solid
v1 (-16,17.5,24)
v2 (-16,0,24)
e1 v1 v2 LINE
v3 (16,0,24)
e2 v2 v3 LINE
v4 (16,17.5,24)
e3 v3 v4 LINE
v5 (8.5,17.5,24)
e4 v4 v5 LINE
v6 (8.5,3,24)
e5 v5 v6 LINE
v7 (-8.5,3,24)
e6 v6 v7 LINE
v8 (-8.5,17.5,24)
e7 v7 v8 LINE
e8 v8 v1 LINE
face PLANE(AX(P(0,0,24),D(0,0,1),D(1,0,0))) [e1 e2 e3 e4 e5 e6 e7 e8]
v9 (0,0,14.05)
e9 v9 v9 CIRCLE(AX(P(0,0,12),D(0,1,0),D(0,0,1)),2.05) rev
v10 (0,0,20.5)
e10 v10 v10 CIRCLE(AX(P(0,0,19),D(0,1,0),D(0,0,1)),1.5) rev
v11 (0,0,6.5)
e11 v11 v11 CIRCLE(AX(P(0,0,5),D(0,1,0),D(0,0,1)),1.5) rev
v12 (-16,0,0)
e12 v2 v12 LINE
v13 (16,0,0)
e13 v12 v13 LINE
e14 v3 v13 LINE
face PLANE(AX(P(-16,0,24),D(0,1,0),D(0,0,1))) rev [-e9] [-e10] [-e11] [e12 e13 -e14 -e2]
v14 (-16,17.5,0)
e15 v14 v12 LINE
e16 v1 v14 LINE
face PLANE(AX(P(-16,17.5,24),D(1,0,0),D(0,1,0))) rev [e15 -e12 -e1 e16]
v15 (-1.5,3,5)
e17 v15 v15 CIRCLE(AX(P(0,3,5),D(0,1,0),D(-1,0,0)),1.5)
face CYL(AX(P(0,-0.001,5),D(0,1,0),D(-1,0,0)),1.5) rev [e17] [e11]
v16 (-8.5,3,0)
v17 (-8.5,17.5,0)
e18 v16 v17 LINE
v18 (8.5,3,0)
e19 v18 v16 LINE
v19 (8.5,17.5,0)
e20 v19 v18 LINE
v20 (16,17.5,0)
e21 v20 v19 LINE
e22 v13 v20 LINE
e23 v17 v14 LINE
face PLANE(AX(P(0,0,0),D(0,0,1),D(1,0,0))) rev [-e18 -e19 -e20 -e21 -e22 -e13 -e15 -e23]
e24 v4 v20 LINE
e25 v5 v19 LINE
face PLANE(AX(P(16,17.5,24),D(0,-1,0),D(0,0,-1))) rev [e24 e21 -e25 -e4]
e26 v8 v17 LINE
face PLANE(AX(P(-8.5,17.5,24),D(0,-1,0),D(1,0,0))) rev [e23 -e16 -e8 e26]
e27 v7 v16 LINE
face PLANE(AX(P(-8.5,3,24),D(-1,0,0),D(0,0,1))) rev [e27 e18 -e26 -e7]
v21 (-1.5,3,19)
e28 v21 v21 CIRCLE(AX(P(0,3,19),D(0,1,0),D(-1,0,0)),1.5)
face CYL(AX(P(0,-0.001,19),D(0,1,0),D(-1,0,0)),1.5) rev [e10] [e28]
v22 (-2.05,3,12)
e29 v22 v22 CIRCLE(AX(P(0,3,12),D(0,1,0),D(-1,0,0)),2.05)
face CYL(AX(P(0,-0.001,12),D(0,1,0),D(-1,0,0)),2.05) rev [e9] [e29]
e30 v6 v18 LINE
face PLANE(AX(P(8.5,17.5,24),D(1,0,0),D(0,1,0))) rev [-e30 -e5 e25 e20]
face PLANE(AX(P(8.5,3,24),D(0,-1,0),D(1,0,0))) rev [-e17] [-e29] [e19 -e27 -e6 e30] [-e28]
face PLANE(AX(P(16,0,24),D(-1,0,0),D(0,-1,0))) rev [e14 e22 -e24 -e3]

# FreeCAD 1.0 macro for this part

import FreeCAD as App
import Part
import Sketcher
Q = App.Units.Quantity


def add_polygon(sketch, points):
    """Adds a closed chain of lines whose ends are joined by coincident constraints."""
    first, n = sketch.GeometryCount, len(points)
    for a, b in zip(points, points[1:] + points[:1]):
        sketch.addGeometry(Part.LineSegment(App.Vector(*a, 0), App.Vector(*b, 0)), False)
    for i in range(n):
        sketch.addConstraint(Sketcher.Constraint("Coincident", first + i, 2, first + (i + 1) % n, 1))

doc = App.newDocument("Part")
body = doc.addObject("PartDesign::Body", "Body")

sketch1 = body.newObject("Sketcher::SketchObject", "Sketch")
sketch1.AttachmentSupport = (doc.getObject("XY_Plane"), [""])
sketch1.MapMode = "FlatFace"
add_polygon(sketch1, [(-16, 0), (16, 0), (16, 17.5), (8.5, 17.5), (8.5, 3), (-8.5, 3), (-8.5, 17.5), (-16, 17.5)])
sketch1.addConstraint([
    Sketcher.Constraint("Horizontal", 0),
    Sketcher.Constraint("Vertical", 1),
    Sketcher.Constraint("Horizontal", 2),
    Sketcher.Constraint("Vertical", 3),
    Sketcher.Constraint("Horizontal", 4),
    Sketcher.Constraint("Vertical", 5),
    Sketcher.Constraint("Horizontal", 6),
    Sketcher.Constraint("Vertical", 7),
    Sketcher.Constraint("Symmetric", 0, 2, 7, 2, -1, 1),
    Sketcher.Constraint("Symmetric", 2, 2, 5, 2, -2),
    Sketcher.Constraint("DistanceX", 0, 1, 0, 2, Q("32 mm")),
    Sketcher.Constraint("DistanceX", 4, 2, 4, 1, Q("17 mm")),
    Sketcher.Constraint("DistanceY", 1, 1, 1, 2, Q("17.5 mm")),
    Sketcher.Constraint("DistanceY", 3, 2, 3, 1, Q("14.5 mm")),
])
pad1 = body.newObject("PartDesign::Pad", "Pad")
pad1.Profile = sketch1
pad1.Length = 24

sketch2 = body.newObject("Sketcher::SketchObject", "Sketch001")
sketch2.AttachmentSupport = (doc.getObject("XZ_Plane"), [""])
sketch2.MapMode = "FlatFace"
sketch2.AttachmentOffset = App.Placement(App.Vector(0, 0, -3), App.Rotation())
sketch2.addGeometry(Part.Circle(App.Vector(0, 5, 0), App.Vector(0, 0, 1), 1.5), False)
sketch2.addConstraint([
    Sketcher.Constraint("PointOnObject", 0, 3, -2),
    Sketcher.Constraint("Diameter", 0, Q("3 mm")),
    Sketcher.Constraint("DistanceY", -1, 1, 0, 3, Q("5 mm")),
])
pocket1 = body.newObject("PartDesign::Pocket", "Pocket")
pocket1.Profile = sketch2
pocket1.Type = "UpToFirst"
pocket1.Reversed = True

sketch3 = body.newObject("Sketcher::SketchObject", "Sketch002")
sketch3.AttachmentSupport = (doc.getObject("XZ_Plane"), [""])
sketch3.MapMode = "FlatFace"
sketch3.AttachmentOffset = App.Placement(App.Vector(0, 0, -3), App.Rotation())
sketch3.addGeometry(Part.Circle(App.Vector(0, 12, 0), App.Vector(0, 0, 1), 2.05), False)
sketch3.addConstraint([
    Sketcher.Constraint("PointOnObject", 0, 3, -2),
    Sketcher.Constraint("Diameter", 0, Q("4.1 mm")),
    Sketcher.Constraint("DistanceY", -1, 1, 0, 3, Q("12 mm")),
])
pocket2 = body.newObject("PartDesign::Pocket", "Pocket001")
pocket2.Profile = sketch3
pocket2.Type = "UpToFirst"
pocket2.Reversed = True

sketch4 = body.newObject("Sketcher::SketchObject", "Sketch003")
sketch4.AttachmentSupport = (doc.getObject("XZ_Plane"), [""])
sketch4.MapMode = "FlatFace"
sketch4.AttachmentOffset = App.Placement(App.Vector(0, 0, -3), App.Rotation())
sketch4.addGeometry(Part.Circle(App.Vector(0, 19, 0), App.Vector(0, 0, 1), 1.5), False)
sketch4.addConstraint([
    Sketcher.Constraint("PointOnObject", 0, 3, -2),
    Sketcher.Constraint("Diameter", 0, Q("3 mm")),
    Sketcher.Constraint("DistanceY", -1, 1, 0, 3, Q("19 mm")),
])
pocket3 = body.newObject("PartDesign::Pocket", "Pocket002")
pocket3.Profile = sketch4
pocket3.Type = "UpToFirst"
pocket3.Reversed = True

doc.recompute()
